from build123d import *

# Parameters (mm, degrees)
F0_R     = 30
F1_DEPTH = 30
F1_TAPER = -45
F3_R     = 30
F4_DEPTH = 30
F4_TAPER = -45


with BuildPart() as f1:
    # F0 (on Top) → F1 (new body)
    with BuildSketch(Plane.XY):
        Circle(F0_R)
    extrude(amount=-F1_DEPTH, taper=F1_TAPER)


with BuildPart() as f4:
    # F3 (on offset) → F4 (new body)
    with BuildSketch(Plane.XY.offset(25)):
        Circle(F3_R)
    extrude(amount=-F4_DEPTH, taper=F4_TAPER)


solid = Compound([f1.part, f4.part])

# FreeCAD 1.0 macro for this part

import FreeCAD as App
import Part
import Sketcher

V = App.Vector

doc = App.newDocument("Part")
body = doc.addObject("PartDesign::Body", "Body")

# Sketch on XY plane
sketch1 = doc.addObject("Sketcher::SketchObject", "Sketch")
body.addObject(sketch1)
sketch1.AttachmentSupport = (doc.XY_Plane, [""])
sketch1.MapMode = "FlatFace"
sketch1.addGeometry(Part.Circle(V(0, 0, 0), V(0, 0, 1), 30), False)
sketch1.addConstraint([
    Sketcher.Constraint("Coincident", 0, 3, -1, 1),
    Sketcher.Constraint("Diameter", 0, 60.0),
])
pad1 = doc.addObject("PartDesign::Pad", "Pad")
body.addObject(pad1)
pad1.Profile = sketch1
pad1.Length = 30
pad1.Reversed = True
pad1.TaperAngle = 45
body2 = doc.addObject("PartDesign::Body", "Body001")

# Sketch on XY plane
sketch2 = doc.addObject("Sketcher::SketchObject", "Sketch001")
body2.addObject(sketch2)
sketch2.AttachmentSupport = (doc.getObject("XY_Plane001"), [""])
sketch2.MapMode = "FlatFace"
sketch2.AttachmentOffset = App.Placement(V(0, 0, 25), App.Rotation())
sketch2.addGeometry(Part.Circle(V(0, 0, 0), V(0, 0, 1), 30), False)
sketch2.addConstraint([
    Sketcher.Constraint("Coincident", 0, 3, -1, 1),
    Sketcher.Constraint("Diameter", 0, 60.0),
])
pad2 = doc.addObject("PartDesign::Pad", "Pad001")
body2.addObject(pad2)
pad2.Profile = sketch2
pad2.Length = 30
pad2.Reversed = True
pad2.TaperAngle = 45

doc.recompute()
